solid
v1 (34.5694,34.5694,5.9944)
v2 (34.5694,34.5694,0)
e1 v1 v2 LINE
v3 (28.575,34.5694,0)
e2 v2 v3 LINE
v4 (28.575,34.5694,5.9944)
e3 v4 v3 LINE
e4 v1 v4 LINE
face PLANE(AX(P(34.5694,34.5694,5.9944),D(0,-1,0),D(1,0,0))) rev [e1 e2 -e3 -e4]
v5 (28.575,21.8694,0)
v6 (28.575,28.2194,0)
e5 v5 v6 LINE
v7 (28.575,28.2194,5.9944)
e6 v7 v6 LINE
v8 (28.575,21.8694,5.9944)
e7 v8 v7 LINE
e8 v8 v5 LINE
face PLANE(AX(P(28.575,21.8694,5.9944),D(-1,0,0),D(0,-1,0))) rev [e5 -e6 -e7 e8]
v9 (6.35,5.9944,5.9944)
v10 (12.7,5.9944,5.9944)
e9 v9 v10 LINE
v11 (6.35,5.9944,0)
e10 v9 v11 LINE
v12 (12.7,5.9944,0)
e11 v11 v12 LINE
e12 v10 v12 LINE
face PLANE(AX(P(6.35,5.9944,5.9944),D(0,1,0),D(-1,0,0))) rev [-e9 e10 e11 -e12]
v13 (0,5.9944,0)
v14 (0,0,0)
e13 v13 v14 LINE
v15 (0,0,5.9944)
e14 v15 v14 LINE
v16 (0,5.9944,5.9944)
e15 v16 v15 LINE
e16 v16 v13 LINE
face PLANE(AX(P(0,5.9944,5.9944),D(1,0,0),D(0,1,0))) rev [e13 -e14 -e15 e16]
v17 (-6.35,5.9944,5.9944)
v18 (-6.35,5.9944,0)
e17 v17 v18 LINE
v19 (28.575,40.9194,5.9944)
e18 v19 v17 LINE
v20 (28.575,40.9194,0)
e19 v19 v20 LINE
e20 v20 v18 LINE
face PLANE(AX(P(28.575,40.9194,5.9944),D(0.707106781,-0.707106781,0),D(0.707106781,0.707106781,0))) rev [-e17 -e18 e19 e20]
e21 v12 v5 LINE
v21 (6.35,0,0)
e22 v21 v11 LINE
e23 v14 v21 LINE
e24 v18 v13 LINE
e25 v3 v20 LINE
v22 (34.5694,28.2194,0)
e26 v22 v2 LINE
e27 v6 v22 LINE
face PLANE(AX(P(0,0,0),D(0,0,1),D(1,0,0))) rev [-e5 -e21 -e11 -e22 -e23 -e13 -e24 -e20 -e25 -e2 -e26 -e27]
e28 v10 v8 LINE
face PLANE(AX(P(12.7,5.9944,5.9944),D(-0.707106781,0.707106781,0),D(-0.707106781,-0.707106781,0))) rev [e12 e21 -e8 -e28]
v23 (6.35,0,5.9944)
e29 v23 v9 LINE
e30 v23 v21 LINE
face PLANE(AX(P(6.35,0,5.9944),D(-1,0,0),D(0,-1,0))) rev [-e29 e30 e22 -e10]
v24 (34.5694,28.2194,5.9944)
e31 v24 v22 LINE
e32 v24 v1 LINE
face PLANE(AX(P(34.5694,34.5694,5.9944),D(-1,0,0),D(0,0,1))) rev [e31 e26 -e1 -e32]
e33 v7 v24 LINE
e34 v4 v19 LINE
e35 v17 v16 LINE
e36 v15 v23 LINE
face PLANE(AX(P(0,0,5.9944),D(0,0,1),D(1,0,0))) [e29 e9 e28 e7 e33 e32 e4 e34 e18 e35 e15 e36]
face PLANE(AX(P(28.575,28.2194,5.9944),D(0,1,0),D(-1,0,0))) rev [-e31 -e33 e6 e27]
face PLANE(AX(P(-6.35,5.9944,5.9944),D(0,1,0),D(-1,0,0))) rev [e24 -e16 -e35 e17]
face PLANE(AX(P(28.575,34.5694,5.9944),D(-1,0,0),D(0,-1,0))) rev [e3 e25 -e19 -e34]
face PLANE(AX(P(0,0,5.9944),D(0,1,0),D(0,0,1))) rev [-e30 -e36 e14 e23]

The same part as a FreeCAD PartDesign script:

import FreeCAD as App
import Part
import Sketcher
Q = App.Units.Quantity


def add_polygon(sketch, points):
    """Adds a closed chain of lines whose ends are joined by coincident constraints."""
    first, n = sketch.GeometryCount, len(points)
    for a, b in zip(points, points[1:] + points[:1]):
        sketch.addGeometry(Part.LineSegment(App.Vector(*a, 0), App.Vector(*b, 0)), False)
    for i in range(n):
        sketch.addConstraint(Sketcher.Constraint("Coincident", first + i, 2, first + (i + 1) % n, 1))

doc = App.newDocument("Part")
params = doc.addObject("Spreadsheet::Sheet", "Params")
for row, (alias, value) in enumerate([
    ("sketch1_width", "0.25 in"),
    ("sketch1_width2", "0.236 in"),
    ("pad1_length", "0.236 in"),
], start=1):
    params.set(f"A{row}", alias)
    params.set(f"B{row}", "=" + value)
    params.setAlias(f"B{row}", alias)

body = doc.addObject("PartDesign::Body", "Body")

# Sketch on XY plane
sketch1 = doc.addObject("Sketcher::SketchObject", "Sketch")
body.addObject(sketch1)
sketch1.AttachmentSupport = (doc.XY_Plane, [""])
sketch1.MapMode = "FlatFace"
add_polygon(sketch1, [(-6.35, 5.9944), (0, 5.9944), (0, 0), (6.35, 0), (6.35, 5.9944), (12.7, 5.9944), (28.575, 21.8694), (28.575, 28.2194), (34.5694, 28.2194), (34.5694, 34.5694), (28.575, 34.5694), (28.575, 40.9194)])  # lines 0-11
sketch1.addConstraint([
    Sketcher.Constraint("Horizontal", 0),
    Sketcher.Constraint("Vertical", 1),
    Sketcher.Constraint("Horizontal", 2),
    Sketcher.Constraint("Vertical", 3),
    Sketcher.Constraint("Horizontal", 4),
    Sketcher.Constraint("Vertical", 6),
    Sketcher.Constraint("Horizontal", 7),
    Sketcher.Constraint("Vertical", 8),
    Sketcher.Constraint("Horizontal", 9),
    Sketcher.Constraint("Vertical", 10),
    Sketcher.Constraint("Coincident", 1, 2, -1, 1),
    Sketcher.Constraint("Symmetric", 3, 2, 11, 2, -2),
    Sketcher.Constraint("Parallel", 5, 11),
    Sketcher.Constraint("Vertical", 6, 2, 9, 2),
    Sketcher.Constraint("Equal", 2, 4),
    Sketcher.Constraint("Equal", 9, 1),
    Sketcher.Constraint("Equal", 4, 6),
    Sketcher.Constraint("Equal", 6, 8),
    Sketcher.Constraint("Equal", 8, 10),
    Sketcher.Constraint("DistanceX", 0, 1, 0, 2, Q("0.25 in")),
    Sketcher.Constraint("DistanceX", 7, 1, 7, 2, Q("0.236 in")),
    Sketcher.Constraint("DistanceX", -1, 1, 5, 2, Q("1.125 in")),
])
sketch1.setExpression("Constraints[31]", "Params.sketch1_width")
sketch1.setExpression("Constraints[32]", "Params.sketch1_width2")
pad1 = doc.addObject("PartDesign::Pad", "Pad")
body.addObject(pad1)
pad1.Profile = sketch1
pad1.setExpression("Length", "Params.pad1_length")

doc.recompute()
